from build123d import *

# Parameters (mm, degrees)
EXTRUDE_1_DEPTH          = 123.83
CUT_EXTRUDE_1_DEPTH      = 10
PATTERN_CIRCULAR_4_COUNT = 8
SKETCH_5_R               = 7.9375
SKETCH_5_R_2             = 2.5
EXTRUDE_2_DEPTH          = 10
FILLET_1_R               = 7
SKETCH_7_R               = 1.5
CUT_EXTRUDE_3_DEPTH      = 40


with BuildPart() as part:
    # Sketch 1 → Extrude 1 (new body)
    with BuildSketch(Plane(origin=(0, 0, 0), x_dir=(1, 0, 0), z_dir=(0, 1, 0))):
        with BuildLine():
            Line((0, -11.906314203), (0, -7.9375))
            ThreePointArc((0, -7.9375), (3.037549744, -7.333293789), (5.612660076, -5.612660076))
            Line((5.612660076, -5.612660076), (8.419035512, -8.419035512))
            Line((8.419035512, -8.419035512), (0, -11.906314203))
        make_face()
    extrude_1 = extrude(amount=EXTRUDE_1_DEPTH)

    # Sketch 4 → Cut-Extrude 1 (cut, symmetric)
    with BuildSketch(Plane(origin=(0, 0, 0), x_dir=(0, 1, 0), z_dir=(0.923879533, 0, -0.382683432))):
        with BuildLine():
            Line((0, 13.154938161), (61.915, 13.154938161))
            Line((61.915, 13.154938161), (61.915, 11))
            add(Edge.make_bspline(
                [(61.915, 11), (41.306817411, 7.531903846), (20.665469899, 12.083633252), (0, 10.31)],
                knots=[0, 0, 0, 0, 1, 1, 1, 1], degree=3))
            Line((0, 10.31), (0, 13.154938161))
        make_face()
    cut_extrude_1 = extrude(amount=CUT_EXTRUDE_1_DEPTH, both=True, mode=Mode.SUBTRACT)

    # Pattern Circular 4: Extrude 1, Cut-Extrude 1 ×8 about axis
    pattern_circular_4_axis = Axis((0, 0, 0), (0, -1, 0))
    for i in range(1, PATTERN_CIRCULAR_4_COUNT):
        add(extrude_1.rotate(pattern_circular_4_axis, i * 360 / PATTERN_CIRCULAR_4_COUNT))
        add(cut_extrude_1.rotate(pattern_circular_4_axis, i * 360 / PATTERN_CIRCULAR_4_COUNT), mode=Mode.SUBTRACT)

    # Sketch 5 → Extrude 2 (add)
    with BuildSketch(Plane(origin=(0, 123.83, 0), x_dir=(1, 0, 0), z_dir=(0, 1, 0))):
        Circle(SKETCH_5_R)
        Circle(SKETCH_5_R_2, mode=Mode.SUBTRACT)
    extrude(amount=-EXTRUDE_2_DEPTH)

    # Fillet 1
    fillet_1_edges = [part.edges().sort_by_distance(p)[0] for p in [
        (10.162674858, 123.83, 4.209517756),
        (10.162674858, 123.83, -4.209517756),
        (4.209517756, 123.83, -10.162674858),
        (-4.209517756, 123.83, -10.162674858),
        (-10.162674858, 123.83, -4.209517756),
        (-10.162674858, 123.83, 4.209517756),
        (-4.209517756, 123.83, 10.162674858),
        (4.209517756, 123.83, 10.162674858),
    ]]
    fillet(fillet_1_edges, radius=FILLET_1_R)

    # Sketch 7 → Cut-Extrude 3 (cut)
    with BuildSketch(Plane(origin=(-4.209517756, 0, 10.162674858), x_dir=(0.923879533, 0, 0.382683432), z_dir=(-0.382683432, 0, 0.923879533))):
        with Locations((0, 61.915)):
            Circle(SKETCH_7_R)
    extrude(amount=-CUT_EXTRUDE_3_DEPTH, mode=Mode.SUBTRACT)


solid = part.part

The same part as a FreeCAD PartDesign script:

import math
import FreeCAD as App
import Part
import Sketcher
from FreeCAD import Vector
Q = App.Units.Quantity


def edges_at(feature, points):
    """Names of the edges that pass closest to the given points."""
    edges = feature.Shape.Edges
    near = lambda p: min(range(len(edges)), key=lambda i: edges[i].distToShape(Part.Vertex(*p))[0])
    return sorted({f"Edge{near(p) + 1}" for p in points})

doc = App.newDocument("Part")
params = doc.addObject("Spreadsheet::Sheet", "Params")
for row, (alias, value) in enumerate([
    ("pad1_length", "123.83 mm"),
    ("pocket1_length", "20 mm"),
    ("sketch3_diameter", "5 mm"),
    ("pad2_length", "10 mm"),
    ("fillet_radius", "7 mm"),
    ("sketch4_diameter", "3 mm"),
    ("pocket2_length", "40 mm"),
], start=1):
    params.set(f"A{row}", alias)
    params.set(f"B{row}", "=" + value)
    params.setAlias(f"B{row}", alias)

body = doc.addObject("PartDesign::Body", "Body")

sketch1 = body.newObject("Sketcher::SketchObject", "Sketch")
sketch1.AttachmentSupport = (doc.getObject("XZ_Plane"), [""])
sketch1.MapMode = "FlatFace"
sketch1.addGeometry([
    Part.LineSegment(Vector(0, 7.9, 0), Vector(0, 11.9, 0)),
    Part.LineSegment(Vector(0, 11.9, 0), Vector(8.4, 8.4, 0)),
    Part.LineSegment(Vector(8.4, 8.4, 0), Vector(5.6, 5.6, 0)),
    Part.ArcOfCircle(Part.Circle(Vector(0, 0, 0), Vector(0, 0, 1), 7.9), math.radians(45), math.radians(90)),
], False)
sketch1.addConstraint([
    Sketcher.Constraint("Coincident", 0, 2, 1, 1),
    Sketcher.Constraint("Coincident", 1, 2, 2, 1),
    Sketcher.Constraint("Coincident", 2, 2, 3, 1),
    Sketcher.Constraint("Coincident", 3, 2, 0, 1),
    Sketcher.Constraint("Vertical", 0),
    Sketcher.Constraint("Coincident", 3, 3, -1, 1),
    Sketcher.Constraint("PointOnObject", 0, 2, -2),
    Sketcher.Constraint("Angle", 2, Q("-135 deg")),
    Sketcher.Constraint("Angle", 1, Q("-22.5 deg")),
    Sketcher.Constraint("Radius", 3, 7.9375),
    Sketcher.Constraint("Distance", 1, 9.112698),
    Sketcher.Constraint("DistanceY", 0, 1, 0, 2, 3.968814),
])
pad1 = body.newObject("PartDesign::Pad", "Pad")
pad1.Profile = sketch1
pad1.setExpression("Length", "Params.pad1_length")
pad1.Reversed = True

sketch2 = body.newObject("Sketcher::SketchObject", "Sketch001")
sketch2.Placement = App.Placement(Vector(0, 0, 0), App.Rotation(Vector(0, 1, 0), Vector(0.382683432, 0, 0.923879533), Vector(0.923879533, 0, -0.382683432), "ZXY"))
sketch2.addGeometry([
    Part.LineSegment(Vector(61.915, 13.154938, 0), Vector(0, 13.154938, 0)),
    Part.LineSegment(Vector(0, 13.154938, 0), Vector(0, 10.31, 0)),
    Part.BSplineCurve([Vector(61.915, 11, 0), Vector(41.306817, 7.531904, 0), Vector(20.66547, 12.083633, 0), Vector(0, 10.31, 0)], [4, 4], [0, 1], False, 3, [1, 1, 1, 1], False),
    Part.LineSegment(Vector(61.915, 11, 0), Vector(61.915, 13.154938, 0)),
], False)
sketch2.addConstraint([
    Sketcher.Constraint("Block", 2),
    Sketcher.Constraint("Coincident", 0, 2, 1, 1),
    Sketcher.Constraint("Coincident", 1, 2, 2, 2),
    Sketcher.Constraint("Coincident", 2, 1, 3, 1),
    Sketcher.Constraint("Coincident", 3, 2, 0, 1),
    Sketcher.Constraint("Horizontal", 0),
    Sketcher.Constraint("Vertical", 1),
    Sketcher.Constraint("Vertical", 3),
    Sketcher.Constraint("DistanceY", 1, 2, 1, 1, 2.844938),
])
pocket1 = body.newObject("PartDesign::Pocket", "Pocket")
pocket1.Profile = sketch2
pocket1.setExpression("Length", "Params.pocket1_length")
pocket1.Midplane = True
doc.recompute()

polarpattern = body.newObject("PartDesign::PolarPattern", "PolarPattern")
polarpattern.Originals = [pad1, pocket1]
polarpattern.Axis = (doc.getObject("Y_Axis"), [""])
polarpattern.Angle = 360
polarpattern.Occurrences = 8
body.Tip = polarpattern

sketch3 = body.newObject("Sketcher::SketchObject", "Sketch002")
sketch3.AttachmentSupport = (doc.getObject("XZ_Plane"), [""])
sketch3.MapMode = "FlatFace"
sketch3.AttachmentOffset = App.Placement(Vector(0, 0, -123.83), App.Rotation())
sketch3.addGeometry([
    Part.Circle(Vector(0, 0, 0), Vector(0, 0, 1), 7.9),
    Part.Circle(Vector(0, 0, 0), Vector(0, 0, 1), 2.5),
], False)
sketch3.addConstraint([
    Sketcher.Constraint("Coincident", 0, 3, -1, 1),
    Sketcher.Constraint("Coincident", 1, 3, -1, 1),
    Sketcher.Constraint("Diameter", 1, 5.0),
    Sketcher.Constraint("Diameter", 0, 15.875),
])
sketch3.setExpression("Constraints[2]", "Params.sketch3_diameter")
pad2 = body.newObject("PartDesign::Pad", "Pad001")
pad2.Profile = sketch3
pad2.setExpression("Length", "Params.pad2_length")
doc.recompute()

fillet = body.newObject("PartDesign::Fillet", "Fillet")
fillet.Base = (pad2, edges_at(pad2, [
    (10.163, 123.83, 4.21),
    (10.163, 123.83, -4.21),
    (4.21, 123.83, -10.163),
    (-4.21, 123.83, -10.163),
    (-10.163, 123.83, -4.21),
    (-10.163, 123.83, 4.21),
    (-4.21, 123.83, 10.163),
    (4.21, 123.83, 10.163),
]))
fillet.setExpression("Radius", "Params.fillet_radius")

sketch4 = body.newObject("Sketcher::SketchObject", "Sketch003")
sketch4.Placement = App.Placement(Vector(-4.209518, 0, 10.162675), App.Rotation(Vector(0.923879533, 0, 0.382683432), Vector(0, 1.000000001, 0), Vector(-0.382683432, 0, 0.923879533), "ZXY"))
sketch4.addGeometry(Part.Circle(Vector(0, 61.9, 0), Vector(0, 0, 1), 1.5), False)
sketch4.addConstraint([
    Sketcher.Constraint("PointOnObject", 0, 3, -2),
    Sketcher.Constraint("Diameter", 0, 3.0),
    Sketcher.Constraint("DistanceY", -1, 1, 0, 3, 61.915),
])
sketch4.setExpression("Constraints[1]", "Params.sketch4_diameter")
pocket2 = body.newObject("PartDesign::Pocket", "Pocket001")
pocket2.Profile = sketch4
pocket2.setExpression("Length", "Params.pocket2_length")

doc.recompute()
